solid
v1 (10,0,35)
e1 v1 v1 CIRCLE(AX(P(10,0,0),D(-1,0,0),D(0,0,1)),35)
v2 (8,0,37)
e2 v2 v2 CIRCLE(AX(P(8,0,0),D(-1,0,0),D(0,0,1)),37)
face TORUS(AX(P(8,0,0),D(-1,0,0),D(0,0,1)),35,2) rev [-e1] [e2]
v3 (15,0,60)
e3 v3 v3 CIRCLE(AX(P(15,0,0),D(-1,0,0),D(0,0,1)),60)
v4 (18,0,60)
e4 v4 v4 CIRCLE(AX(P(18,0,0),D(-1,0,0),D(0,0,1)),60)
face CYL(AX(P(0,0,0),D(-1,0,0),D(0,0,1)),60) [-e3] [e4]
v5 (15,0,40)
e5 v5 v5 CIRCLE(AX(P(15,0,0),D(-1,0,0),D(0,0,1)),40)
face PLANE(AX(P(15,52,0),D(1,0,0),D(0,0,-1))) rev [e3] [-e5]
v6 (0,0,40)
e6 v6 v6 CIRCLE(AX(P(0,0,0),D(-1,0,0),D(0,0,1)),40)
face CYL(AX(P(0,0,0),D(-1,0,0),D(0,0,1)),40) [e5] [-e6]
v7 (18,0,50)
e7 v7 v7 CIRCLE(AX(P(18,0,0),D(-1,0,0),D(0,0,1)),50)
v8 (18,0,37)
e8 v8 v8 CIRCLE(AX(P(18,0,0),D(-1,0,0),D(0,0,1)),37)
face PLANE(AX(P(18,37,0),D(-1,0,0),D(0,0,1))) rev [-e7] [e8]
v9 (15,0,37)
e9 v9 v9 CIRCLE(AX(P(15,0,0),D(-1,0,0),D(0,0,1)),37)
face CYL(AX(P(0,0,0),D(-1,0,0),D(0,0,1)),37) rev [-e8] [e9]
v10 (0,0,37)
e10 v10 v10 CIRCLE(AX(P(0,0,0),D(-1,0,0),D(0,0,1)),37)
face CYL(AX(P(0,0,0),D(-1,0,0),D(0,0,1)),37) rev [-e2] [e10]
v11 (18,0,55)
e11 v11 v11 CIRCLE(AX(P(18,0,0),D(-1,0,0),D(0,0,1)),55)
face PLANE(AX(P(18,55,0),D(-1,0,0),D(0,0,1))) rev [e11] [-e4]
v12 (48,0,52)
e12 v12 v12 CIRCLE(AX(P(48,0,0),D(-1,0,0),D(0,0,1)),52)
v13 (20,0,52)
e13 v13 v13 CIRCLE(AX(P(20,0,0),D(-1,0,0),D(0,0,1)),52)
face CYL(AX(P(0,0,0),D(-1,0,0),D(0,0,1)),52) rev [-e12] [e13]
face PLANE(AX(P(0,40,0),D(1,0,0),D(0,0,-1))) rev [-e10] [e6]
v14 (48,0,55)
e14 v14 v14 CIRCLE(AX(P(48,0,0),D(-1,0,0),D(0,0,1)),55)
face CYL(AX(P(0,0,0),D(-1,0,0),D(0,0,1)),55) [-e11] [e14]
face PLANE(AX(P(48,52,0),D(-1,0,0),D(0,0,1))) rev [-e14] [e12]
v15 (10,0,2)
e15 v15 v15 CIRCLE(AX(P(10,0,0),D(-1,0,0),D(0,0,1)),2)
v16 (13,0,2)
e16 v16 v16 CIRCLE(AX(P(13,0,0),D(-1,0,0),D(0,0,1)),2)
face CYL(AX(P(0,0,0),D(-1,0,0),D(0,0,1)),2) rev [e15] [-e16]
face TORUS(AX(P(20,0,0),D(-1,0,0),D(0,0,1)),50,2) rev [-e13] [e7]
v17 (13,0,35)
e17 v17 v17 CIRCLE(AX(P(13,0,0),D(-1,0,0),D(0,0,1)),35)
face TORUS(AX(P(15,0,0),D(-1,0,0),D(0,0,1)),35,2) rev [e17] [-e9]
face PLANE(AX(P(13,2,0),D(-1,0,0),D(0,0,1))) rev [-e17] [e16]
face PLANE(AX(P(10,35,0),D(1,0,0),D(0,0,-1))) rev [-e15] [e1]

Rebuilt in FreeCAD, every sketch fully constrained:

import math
import FreeCAD as App
import Part
import Sketcher

V = App.Vector

doc = App.newDocument("Part")
body = doc.addObject("PartDesign::Body", "Body")

# Sketch on XY plane
sketch1 = body.newObject("Sketcher::SketchObject", "Sketch")
sketch1.AttachmentSupport = (doc.getObject("XY_Plane"), [""])
sketch1.MapMode = "FlatFace"
sketch1.addGeometry([
    Part.LineSegment(V(0, 40, 0), V(0, 37, 0)),  # 0
    Part.LineSegment(V(0, 37, 0), V(8, 37, 0)),  # 1
    Part.ArcOfCircle(Part.Circle(V(8, 35, 0), V(0, 0, 1), 2), math.radians(0), math.radians(90)),  # 2
    Part.LineSegment(V(10, 35, 0), V(10, 2, 0)),  # 3
    Part.LineSegment(V(10, 2, 0), V(13, 2, 0)),  # 4
    Part.LineSegment(V(13, 2, 0), V(13, 35, 0)),  # 5
    Part.ArcOfCircle(Part.Circle(V(15, 35, 0), V(0, 0, 1), 2), math.radians(90), math.radians(180)),  # 6
    Part.LineSegment(V(15, 37, 0), V(18, 37, 0)),  # 7
    Part.LineSegment(V(18, 37, 0), V(18, 50, 0)),  # 8
    Part.ArcOfCircle(Part.Circle(V(20, 50, 0), V(0, 0, 1), 2), math.radians(90), math.radians(180)),  # 9
    Part.LineSegment(V(20, 52, 0), V(48, 52, 0)),  # 10
    Part.LineSegment(V(48, 52, 0), V(48, 55, 0)),  # 11
    Part.LineSegment(V(48, 55, 0), V(18, 55, 0)),  # 12
    Part.LineSegment(V(18, 55, 0), V(18, 60, 0)),  # 13
    Part.LineSegment(V(18, 60, 0), V(15, 60, 0)),  # 14
    Part.LineSegment(V(15, 60, 0), V(15, 40, 0)),  # 15
    Part.LineSegment(V(15, 40, 0), V(0, 40, 0)),  # 16
], False)
sketch1.addConstraint([
    Sketcher.Constraint("Coincident", 0, 2, 1, 1),
    Sketcher.Constraint("Tangent", 1, 2, 2, 2),
    Sketcher.Constraint("Tangent", 2, 1, 3, 1),
    Sketcher.Constraint("Coincident", 3, 2, 4, 1),
    Sketcher.Constraint("Coincident", 4, 2, 5, 1),
    Sketcher.Constraint("Tangent", 5, 2, 6, 2),
    Sketcher.Constraint("Tangent", 6, 1, 7, 1),
    Sketcher.Constraint("Coincident", 7, 2, 8, 1),
    Sketcher.Constraint("Tangent", 8, 2, 9, 2),
    Sketcher.Constraint("Tangent", 9, 1, 10, 1),
    Sketcher.Constraint("Coincident", 10, 2, 11, 1),
    Sketcher.Constraint("Coincident", 11, 2, 12, 1),
    Sketcher.Constraint("Coincident", 12, 2, 13, 1),
    Sketcher.Constraint("Coincident", 13, 2, 14, 1),
    Sketcher.Constraint("Coincident", 14, 2, 15, 1),
    Sketcher.Constraint("Coincident", 15, 2, 16, 1),
    Sketcher.Constraint("Coincident", 16, 2, 0, 1),
    Sketcher.Constraint("Vertical", 0),
    Sketcher.Constraint("Horizontal", 1),
    Sketcher.Constraint("Vertical", 3),
    Sketcher.Constraint("Horizontal", 4),
    Sketcher.Constraint("Vertical", 5),
    Sketcher.Constraint("Horizontal", 7),
    Sketcher.Constraint("Vertical", 8),
    Sketcher.Constraint("Horizontal", 10),
    Sketcher.Constraint("Vertical", 11),
    Sketcher.Constraint("Horizontal", 12),
    Sketcher.Constraint("Vertical", 13),
    Sketcher.Constraint("Horizontal", 14),
    Sketcher.Constraint("Vertical", 15),
    Sketcher.Constraint("Horizontal", 16),
    Sketcher.Constraint("Equal", 2, 6),
    Sketcher.Constraint("Equal", 6, 9),
    Sketcher.Constraint("PointOnObject", 0, 2, -2),
    Sketcher.Constraint("Horizontal", 2, 3, 6, 3),
    Sketcher.Constraint("Vertical", 8, 2, 12, 2),
    Sketcher.Constraint("Vertical", 6, 1, 14, 2),
    Sketcher.Constraint("Equal", 4, 7),
    Sketcher.Constraint("Equal", 14, 0),
    Sketcher.Constraint("Equal", 0, 11),
    Sketcher.Constraint("Radius", 2, 2.0),
    Sketcher.Constraint("DistanceX", 1, 1, 1, 2, 8.0),
    Sketcher.Constraint("DistanceX", 4, 1, 4, 2, 3.0),
    Sketcher.Constraint("DistanceX", 10, 1, 10, 2, 28.0),
    Sketcher.Constraint("DistanceY", 3, 2, 3, 1, 33.0),
    Sketcher.Constraint("DistanceY", 8, 1, 8, 2, 13.0),
    Sketcher.Constraint("DistanceY", 13, 1, 13, 2, 5.0),
    Sketcher.Constraint("DistanceY", -1, 1, 2, 3, 35.0),
])
revolution = body.newObject("PartDesign::Revolution", "Revolution")
revolution.Profile = sketch1
revolution.ReferenceAxis = (sketch1, ["H_Axis"])
revolution.Angle = 360

doc.recompute()
